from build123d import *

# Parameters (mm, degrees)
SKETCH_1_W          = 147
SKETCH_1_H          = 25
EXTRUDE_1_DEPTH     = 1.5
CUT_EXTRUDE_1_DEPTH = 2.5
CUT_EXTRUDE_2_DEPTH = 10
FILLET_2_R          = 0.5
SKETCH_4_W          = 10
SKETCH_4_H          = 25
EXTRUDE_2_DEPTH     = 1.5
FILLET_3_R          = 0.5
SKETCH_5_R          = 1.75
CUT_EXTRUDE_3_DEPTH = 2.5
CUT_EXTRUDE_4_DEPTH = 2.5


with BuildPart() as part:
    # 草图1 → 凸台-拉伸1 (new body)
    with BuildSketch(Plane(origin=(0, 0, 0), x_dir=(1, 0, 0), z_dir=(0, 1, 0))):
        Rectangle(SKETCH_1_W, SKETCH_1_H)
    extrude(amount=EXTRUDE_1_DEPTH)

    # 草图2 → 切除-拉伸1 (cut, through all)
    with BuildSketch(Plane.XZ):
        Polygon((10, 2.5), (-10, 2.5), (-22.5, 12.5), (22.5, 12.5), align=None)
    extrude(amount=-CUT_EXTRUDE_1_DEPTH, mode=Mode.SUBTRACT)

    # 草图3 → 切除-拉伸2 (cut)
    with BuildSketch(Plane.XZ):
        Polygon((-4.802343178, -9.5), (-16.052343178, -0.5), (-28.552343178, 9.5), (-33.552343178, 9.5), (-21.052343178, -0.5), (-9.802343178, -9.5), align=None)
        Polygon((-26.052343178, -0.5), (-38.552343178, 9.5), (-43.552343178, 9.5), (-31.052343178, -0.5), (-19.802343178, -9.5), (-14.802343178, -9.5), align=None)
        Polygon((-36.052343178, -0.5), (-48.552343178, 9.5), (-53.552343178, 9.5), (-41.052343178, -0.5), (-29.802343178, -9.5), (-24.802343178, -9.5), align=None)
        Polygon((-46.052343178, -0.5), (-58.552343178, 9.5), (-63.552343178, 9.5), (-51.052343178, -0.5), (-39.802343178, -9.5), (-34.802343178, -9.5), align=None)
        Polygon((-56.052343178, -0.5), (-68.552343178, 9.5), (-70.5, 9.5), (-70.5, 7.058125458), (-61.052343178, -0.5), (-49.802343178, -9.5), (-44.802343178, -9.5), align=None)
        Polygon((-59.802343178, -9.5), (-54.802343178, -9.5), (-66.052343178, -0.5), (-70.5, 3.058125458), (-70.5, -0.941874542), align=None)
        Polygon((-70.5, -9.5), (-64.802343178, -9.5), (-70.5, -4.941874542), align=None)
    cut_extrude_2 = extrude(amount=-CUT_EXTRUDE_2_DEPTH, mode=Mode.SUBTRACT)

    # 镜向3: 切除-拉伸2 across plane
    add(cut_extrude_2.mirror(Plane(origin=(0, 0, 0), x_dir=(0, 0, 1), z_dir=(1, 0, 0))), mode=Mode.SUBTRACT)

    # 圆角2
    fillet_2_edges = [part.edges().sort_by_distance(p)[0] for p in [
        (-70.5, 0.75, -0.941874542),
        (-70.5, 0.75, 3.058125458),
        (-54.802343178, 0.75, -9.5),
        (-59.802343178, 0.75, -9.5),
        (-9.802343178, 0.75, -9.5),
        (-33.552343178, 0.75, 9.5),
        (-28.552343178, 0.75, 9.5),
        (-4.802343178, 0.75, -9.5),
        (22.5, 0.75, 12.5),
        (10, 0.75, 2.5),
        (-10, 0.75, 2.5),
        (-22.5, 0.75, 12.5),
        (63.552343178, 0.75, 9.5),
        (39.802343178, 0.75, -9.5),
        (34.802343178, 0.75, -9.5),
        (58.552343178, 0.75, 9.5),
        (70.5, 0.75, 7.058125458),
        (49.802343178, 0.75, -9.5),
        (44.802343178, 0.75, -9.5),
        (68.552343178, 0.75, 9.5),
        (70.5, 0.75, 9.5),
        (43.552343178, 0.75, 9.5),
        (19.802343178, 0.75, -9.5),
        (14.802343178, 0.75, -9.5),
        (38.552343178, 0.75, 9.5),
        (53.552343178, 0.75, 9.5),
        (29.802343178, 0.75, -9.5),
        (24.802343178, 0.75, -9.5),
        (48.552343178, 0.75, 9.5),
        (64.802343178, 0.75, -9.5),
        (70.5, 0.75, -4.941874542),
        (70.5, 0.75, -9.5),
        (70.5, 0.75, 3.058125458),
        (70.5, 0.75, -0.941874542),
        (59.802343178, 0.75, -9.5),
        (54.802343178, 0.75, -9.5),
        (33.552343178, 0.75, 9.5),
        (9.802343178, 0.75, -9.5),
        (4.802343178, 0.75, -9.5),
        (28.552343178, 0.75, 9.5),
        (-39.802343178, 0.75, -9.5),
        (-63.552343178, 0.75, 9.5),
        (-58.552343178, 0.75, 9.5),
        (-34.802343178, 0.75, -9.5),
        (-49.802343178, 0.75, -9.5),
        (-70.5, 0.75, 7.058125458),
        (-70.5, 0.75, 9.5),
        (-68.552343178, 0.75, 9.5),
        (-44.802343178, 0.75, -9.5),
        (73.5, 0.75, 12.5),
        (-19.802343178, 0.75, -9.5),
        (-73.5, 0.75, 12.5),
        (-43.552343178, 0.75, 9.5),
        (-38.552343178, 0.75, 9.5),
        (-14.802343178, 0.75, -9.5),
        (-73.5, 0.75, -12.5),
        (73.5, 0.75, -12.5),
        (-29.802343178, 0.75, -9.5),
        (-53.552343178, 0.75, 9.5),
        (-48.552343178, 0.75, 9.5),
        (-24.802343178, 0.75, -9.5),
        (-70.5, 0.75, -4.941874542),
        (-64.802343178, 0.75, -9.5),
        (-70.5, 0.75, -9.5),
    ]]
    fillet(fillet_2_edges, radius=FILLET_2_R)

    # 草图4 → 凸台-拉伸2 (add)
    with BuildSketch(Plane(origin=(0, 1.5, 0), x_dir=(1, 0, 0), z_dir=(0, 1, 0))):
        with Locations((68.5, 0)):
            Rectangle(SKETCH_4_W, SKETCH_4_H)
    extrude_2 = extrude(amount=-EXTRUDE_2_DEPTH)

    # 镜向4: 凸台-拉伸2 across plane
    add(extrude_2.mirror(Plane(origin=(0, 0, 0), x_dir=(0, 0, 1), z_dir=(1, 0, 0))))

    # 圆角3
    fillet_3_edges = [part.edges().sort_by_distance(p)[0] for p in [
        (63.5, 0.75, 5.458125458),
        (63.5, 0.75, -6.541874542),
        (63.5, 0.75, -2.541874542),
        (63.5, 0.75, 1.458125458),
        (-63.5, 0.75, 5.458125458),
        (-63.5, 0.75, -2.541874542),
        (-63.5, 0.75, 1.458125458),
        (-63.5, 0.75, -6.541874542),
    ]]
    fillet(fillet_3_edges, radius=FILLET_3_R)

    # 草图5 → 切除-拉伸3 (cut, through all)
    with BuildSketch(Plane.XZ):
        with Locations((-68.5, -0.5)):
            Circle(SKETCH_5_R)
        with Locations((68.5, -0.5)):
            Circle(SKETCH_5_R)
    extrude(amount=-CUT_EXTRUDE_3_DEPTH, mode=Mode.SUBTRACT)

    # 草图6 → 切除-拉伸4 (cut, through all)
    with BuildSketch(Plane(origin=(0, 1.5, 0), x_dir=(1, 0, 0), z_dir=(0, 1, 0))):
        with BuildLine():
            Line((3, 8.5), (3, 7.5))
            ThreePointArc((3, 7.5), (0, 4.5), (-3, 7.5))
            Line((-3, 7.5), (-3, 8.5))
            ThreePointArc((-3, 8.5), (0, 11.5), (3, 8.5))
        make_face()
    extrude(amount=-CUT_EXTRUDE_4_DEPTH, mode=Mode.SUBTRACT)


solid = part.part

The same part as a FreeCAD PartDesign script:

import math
import FreeCAD as App
import Part
import Sketcher
Q = App.Units.Quantity


def edges_at(feature, points):
    """Names of the edges that pass closest to the given points."""
    edges = feature.Shape.Edges
    near = lambda p: min(range(len(edges)), key=lambda i: edges[i].distToShape(Part.Vertex(*p))[0])
    return sorted({f"Edge{near(p) + 1}" for p in points})

doc = App.newDocument("Part")
body = doc.addObject("PartDesign::Body", "Body")

sketch1 = doc.addObject("Sketcher::SketchObject", "Sketch")
body.addObject(sketch1)
sketch1.AttachmentSupport = (doc.XZ_Plane, [""])
sketch1.MapMode = "FlatFace"
sketch1.addGeometry([
    Part.LineSegment(App.Vector(-74, -12, 0), App.Vector(-74, 12, 0)),
    Part.LineSegment(App.Vector(-74, 12, 0), App.Vector(74, 12, 0)),
    Part.LineSegment(App.Vector(74, 12, 0), App.Vector(74, -12, 0)),
    Part.LineSegment(App.Vector(74, -12, 0), App.Vector(-74, -12, 0)),
], False)
sketch1.addConstraint([
    Sketcher.Constraint("Coincident", 0, 2, 1, 1),
    Sketcher.Constraint("Coincident", 1, 2, 2, 1),
    Sketcher.Constraint("Coincident", 2, 2, 3, 1),
    Sketcher.Constraint("Coincident", 3, 2, 0, 1),
    Sketcher.Constraint("Vertical", 0),
    Sketcher.Constraint("Horizontal", 1),
    Sketcher.Constraint("Vertical", 2),
    Sketcher.Constraint("Horizontal", 3),
    Sketcher.Constraint("Symmetric", 0, 2, 2, 2, -1, 1),
    Sketcher.Constraint("DistanceX", 1, 1, 1, 2, Q("147 mm")),
    Sketcher.Constraint("DistanceY", 0, 1, 0, 2, Q("25 mm")),
])
pad1 = doc.addObject("PartDesign::Pad", "Pad")
body.addObject(pad1)
pad1.Profile = sketch1
pad1.Length = 1.5
pad1.Reversed = True

sketch2 = doc.addObject("Sketcher::SketchObject", "Sketch001")
body.addObject(sketch2)
sketch2.AttachmentSupport = (doc.XZ_Plane, [""])
sketch2.MapMode = "FlatFace"
sketch2.addGeometry([
    Part.LineSegment(App.Vector(-10, 2, 0), App.Vector(10, 2, 0)),
    Part.LineSegment(App.Vector(10, 2, 0), App.Vector(22, 12, 0)),
    Part.LineSegment(App.Vector(22, 12, 0), App.Vector(-22, 12, 0)),
    Part.LineSegment(App.Vector(-22, 12, 0), App.Vector(-10, 2, 0)),
], False)
sketch2.addConstraint([
    Sketcher.Constraint("Coincident", 0, 2, 1, 1),
    Sketcher.Constraint("Coincident", 1, 2, 2, 1),
    Sketcher.Constraint("Coincident", 2, 2, 3, 1),
    Sketcher.Constraint("Coincident", 3, 2, 0, 1),
    Sketcher.Constraint("Horizontal", 0),
    Sketcher.Constraint("Horizontal", 2),
    Sketcher.Constraint("Equal", 1, 3),
    Sketcher.Constraint("DistanceX", 0, 1, 0, 2, Q("20 mm")),
    Sketcher.Constraint("DistanceX", 2, 2, 2, 1, Q("45 mm")),
    Sketcher.Constraint("DistanceX", -1, 1, 0, 2, Q("10 mm")),
    Sketcher.Constraint("DistanceY", 0, 2, 1, 2, Q("10 mm")),
    Sketcher.Constraint("DistanceY", -1, 1, 0, 2, Q("2.5 mm")),
])
pocket1 = doc.addObject("PartDesign::Pocket", "Pocket")
body.addObject(pocket1)
pocket1.Profile = sketch2
pocket1.Type = "ThroughAll"

sketch3 = doc.addObject("Sketcher::SketchObject", "Sketch002")
body.addObject(sketch3)
sketch3.AttachmentSupport = (doc.XZ_Plane, [""])
sketch3.MapMode = "FlatFace"
sketch3.addGeometry([
    Part.LineSegment(App.Vector(-4.8, -9.5, 0), App.Vector(-28.6, 9.5, 0)),
    Part.LineSegment(App.Vector(-28.6, 9.5, 0), App.Vector(-33.6, 9.5, 0)),
    Part.LineSegment(App.Vector(-33.6, 9.5, 0), App.Vector(-9.8, -9.5, 0)),
    Part.LineSegment(App.Vector(-9.8, -9.5, 0), App.Vector(-4.8, -9.5, 0)),
    Part.LineSegment(App.Vector(-38.6, 9.5, 0), App.Vector(-43.6, 9.5, 0)),
    Part.LineSegment(App.Vector(-43.6, 9.5, 0), App.Vector(-19.8, -9.5, 0)),
    Part.LineSegment(App.Vector(-19.8, -9.5, 0), App.Vector(-14.8, -9.5, 0)),
    Part.LineSegment(App.Vector(-14.8, -9.5, 0), App.Vector(-38.6, 9.5, 0)),
    Part.LineSegment(App.Vector(-48.6, 9.5, 0), App.Vector(-53.6, 9.5, 0)),
    Part.LineSegment(App.Vector(-53.6, 9.5, 0), App.Vector(-29.8, -9.5, 0)),
    Part.LineSegment(App.Vector(-29.8, -9.5, 0), App.Vector(-24.8, -9.5, 0)),
    Part.LineSegment(App.Vector(-24.8, -9.5, 0), App.Vector(-48.6, 9.5, 0)),
    Part.LineSegment(App.Vector(-58.6, 9.5, 0), App.Vector(-63.6, 9.5, 0)),
    Part.LineSegment(App.Vector(-63.6, 9.5, 0), App.Vector(-39.8, -9.5, 0)),
    Part.LineSegment(App.Vector(-39.8, -9.5, 0), App.Vector(-34.8, -9.5, 0)),
    Part.LineSegment(App.Vector(-34.8, -9.5, 0), App.Vector(-58.6, 9.5, 0)),
    Part.LineSegment(App.Vector(-68.6, 9.5, 0), App.Vector(-70.5, 9.5, 0)),
    Part.LineSegment(App.Vector(-70.5, 9.5, 0), App.Vector(-70.5, 7.1, 0)),
    Part.LineSegment(App.Vector(-70.5, 7.1, 0), App.Vector(-61.1, -0.5, 0)),
    Part.LineSegment(App.Vector(-61.1, -0.5, 0), App.Vector(-49.8, -9.5, 0)),
    Part.LineSegment(App.Vector(-49.8, -9.5, 0), App.Vector(-44.8, -9.5, 0)),
    Part.LineSegment(App.Vector(-44.8, -9.5, 0), App.Vector(-68.6, 9.5, 0)),
    Part.LineSegment(App.Vector(-59.8, -9.5, 0), App.Vector(-54.8, -9.5, 0)),
    Part.LineSegment(App.Vector(-54.8, -9.5, 0), App.Vector(-66.1, -0.5, 0)),
    Part.LineSegment(App.Vector(-66.1, -0.5, 0), App.Vector(-70.5, 3.1, 0)),
    Part.LineSegment(App.Vector(-70.5, 3.1, 0), App.Vector(-70.5, -0.9, 0)),
    Part.LineSegment(App.Vector(-70.5, -0.9, 0), App.Vector(-59.8, -9.5, 0)),
    Part.LineSegment(App.Vector(-70.5, -9.5, 0), App.Vector(-64.8, -9.5, 0)),
    Part.LineSegment(App.Vector(-64.8, -9.5, 0), App.Vector(-70.5, -4.9, 0)),
    Part.LineSegment(App.Vector(-70.5, -4.9, 0), App.Vector(-70.5, -9.5, 0)),
], False)
sketch3.addConstraint([
    Sketcher.Constraint("Coincident", 0, 2, 1, 1),
    Sketcher.Constraint("Coincident", 1, 2, 2, 1),
    Sketcher.Constraint("Coincident", 2, 2, 3, 1),
    Sketcher.Constraint("Coincident", 3, 2, 0, 1),
    Sketcher.Constraint("Coincident", 4, 2, 5, 1),
    Sketcher.Constraint("Coincident", 5, 2, 6, 1),
    Sketcher.Constraint("Coincident", 6, 2, 7, 1),
    Sketcher.Constraint("Coincident", 7, 2, 4, 1),
    Sketcher.Constraint("Coincident", 8, 2, 9, 1),
    Sketcher.Constraint("Coincident", 9, 2, 10, 1),
    Sketcher.Constraint("Coincident", 10, 2, 11, 1),
    Sketcher.Constraint("Coincident", 11, 2, 8, 1),
    Sketcher.Constraint("Coincident", 12, 2, 13, 1),
    Sketcher.Constraint("Coincident", 13, 2, 14, 1),
    Sketcher.Constraint("Coincident", 14, 2, 15, 1),
    Sketcher.Constraint("Coincident", 15, 2, 12, 1),
    Sketcher.Constraint("Coincident", 16, 2, 17, 1),
    Sketcher.Constraint("Coincident", 17, 2, 18, 1),
    Sketcher.Constraint("Coincident", 18, 2, 19, 1),
    Sketcher.Constraint("Coincident", 19, 2, 20, 1),
    Sketcher.Constraint("Coincident", 20, 2, 21, 1),
    Sketcher.Constraint("Coincident", 21, 2, 16, 1),
    Sketcher.Constraint("Coincident", 22, 2, 23, 1),
    Sketcher.Constraint("Coincident", 23, 2, 24, 1),
    Sketcher.Constraint("Coincident", 24, 2, 25, 1),
    Sketcher.Constraint("Coincident", 25, 2, 26, 1),
    Sketcher.Constraint("Coincident", 26, 2, 22, 1),
    Sketcher.Constraint("Coincident", 27, 2, 28, 1),
    Sketcher.Constraint("Coincident", 28, 2, 29, 1),
    Sketcher.Constraint("Coincident", 29, 2, 27, 1),
    Sketcher.Constraint("Horizontal", 1),
    Sketcher.Constraint("Horizontal", 3),
    Sketcher.Constraint("Horizontal", 4),
    Sketcher.Constraint("Horizontal", 6),
    Sketcher.Constraint("Horizontal", 8),
    Sketcher.Constraint("Horizontal", 10),
    Sketcher.Constraint("Horizontal", 12),
    Sketcher.Constraint("Horizontal", 14),
    Sketcher.Constraint("Horizontal", 16),
    Sketcher.Constraint("Vertical", 17),
    Sketcher.Constraint("Horizontal", 20),
    Sketcher.Constraint("Horizontal", 22),
    Sketcher.Constraint("Vertical", 25),
    Sketcher.Constraint("Horizontal", 27),
    Sketcher.Constraint("Vertical", 29),
    Sketcher.Constraint("Symmetric", 16, 2, 29, 2, -1),
    Sketcher.Constraint("Parallel", 0, 2),
    Sketcher.Constraint("Parallel", 2, 5),
    Sketcher.Constraint("Parallel", 5, 7),
    Sketcher.Constraint("Parallel", 7, 9),
    Sketcher.Constraint("Parallel", 9, 11),
    Sketcher.Constraint("Parallel", 11, 13),
    Sketcher.Constraint("Parallel", 13, 15),
    Sketcher.Constraint("Parallel", 15, 18),
    Sketcher.Constraint("Parallel", 18, 19),
    Sketcher.Constraint("Parallel", 19, 21),
    Sketcher.Constraint("Parallel", 21, 23),
    Sketcher.Constraint("Parallel", 23, 24),
    Sketcher.Constraint("Parallel", 24, 26),
    Sketcher.Constraint("Parallel", 26, 28),
    Sketcher.Constraint("Horizontal", 1, 2, 4, 2),
    Sketcher.Constraint("Horizontal", 3, 2, 5, 2),
    Sketcher.Constraint("Horizontal", 7, 2, 8, 2),
    Sketcher.Constraint("Horizontal", 6, 2, 9, 2),
    Sketcher.Constraint("Horizontal", 11, 2, 12, 2),
    Sketcher.Constraint("Horizontal", 10, 2, 13, 2),
    Sketcher.Constraint("Horizontal", 15, 2, 16, 2),
    Sketcher.Constraint("Horizontal", 14, 2, 19, 2),
    Sketcher.Constraint("Horizontal", 20, 2, 22, 2),
    Sketcher.Constraint("Horizontal", 18, 2, 23, 2),
    Sketcher.Constraint("Horizontal", 26, 2, 27, 2),
    Sketcher.Constraint("Vertical", 17, 2, 24, 2),
    Sketcher.Constraint("Equal", 3, 4),
    Sketcher.Constraint("Equal", 6, 8),
    Sketcher.Constraint("Equal", 10, 12),
    Sketcher.Constraint("Equal", 14, 20),
    Sketcher.Constraint("Equal", 20, 22),
    Sketcher.Constraint("DistanceX", 1, 2, 1, 1, Q("5 mm")),
    Sketcher.Constraint("DistanceY", 25, 2, 25, 1, Q("4 mm")),
    Sketcher.Constraint("DistanceY", 2, 2, 0, 2, Q("19 mm")),
    Sketcher.Constraint("DistanceX", 4, 2, 1, 2, Q("10 mm")),
    Sketcher.Constraint("DistanceX", 8, 2, 4, 2, Q("10 mm")),
    Sketcher.Constraint("DistanceX", 12, 2, 8, 2, Q("10 mm")),
    Sketcher.Constraint("DistanceY", 18, 2, 12, 2, Q("10 mm")),
    Sketcher.Constraint("DistanceX", 19, 2, 13, 2, Q("10 mm")),
    Sketcher.Constraint("DistanceX", 22, 2, 19, 2, Q("5 mm")),
    Sketcher.Constraint("DistanceX", 27, 2, 26, 2, Q("5 mm")),
    Sketcher.Constraint("DistanceX", 16, 2, -1, 1, Q("70.5 mm")),
    Sketcher.Constraint("Distance", 24, Q("5.69578 mm")),
])
pocket2 = doc.addObject("PartDesign::Pocket", "Pocket001")
body.addObject(pocket2)
pocket2.Profile = sketch3
pocket2.Length = 10
doc.recompute()

mirrored = doc.addObject("PartDesign::Mirrored", "Mirrored")
body.addObject(mirrored)
mirrored.Originals = [pocket2]
mirrored.MirrorPlane = (doc.YZ_Plane, [""])
body.Tip = mirrored
doc.recompute()

fillet = doc.addObject("PartDesign::Fillet", "Fillet")
body.addObject(fillet)
fillet.Base = (mirrored, edges_at(mirrored, [
    (-70.5, 0.75, -0.942),
    (-70.5, 0.75, 3.058),
    (-54.802, 0.75, -9.5),
    (-59.802, 0.75, -9.5),
    (-9.802, 0.75, -9.5),
    (-33.552, 0.75, 9.5),
    (-28.552, 0.75, 9.5),
    (-4.802, 0.75, -9.5),
    (22.5, 0.75, 12.5),
    (10, 0.75, 2.5),
    (-10, 0.75, 2.5),
    (-22.5, 0.75, 12.5),
    (63.552, 0.75, 9.5),
    (39.802, 0.75, -9.5),
    (34.802, 0.75, -9.5),
    (58.552, 0.75, 9.5),
    (70.5, 0.75, 7.058),
    (49.802, 0.75, -9.5),
    (44.802, 0.75, -9.5),
    (68.552, 0.75, 9.5),
    (70.5, 0.75, 9.5),
    (43.552, 0.75, 9.5),
    (19.802, 0.75, -9.5),
    (14.802, 0.75, -9.5),
    (38.552, 0.75, 9.5),
    (53.552, 0.75, 9.5),
    (29.802, 0.75, -9.5),
    (24.802, 0.75, -9.5),
    (48.552, 0.75, 9.5),
    (64.802, 0.75, -9.5),
    (70.5, 0.75, -4.942),
    (70.5, 0.75, -9.5),
    (70.5, 0.75, 3.058),
    (70.5, 0.75, -0.942),
    (59.802, 0.75, -9.5),
    (54.802, 0.75, -9.5),
    (33.552, 0.75, 9.5),
    (9.802, 0.75, -9.5),
    (4.802, 0.75, -9.5),
    (28.552, 0.75, 9.5),
    (-39.802, 0.75, -9.5),
    (-63.552, 0.75, 9.5),
    (-58.552, 0.75, 9.5),
    (-34.802, 0.75, -9.5),
    (-49.802, 0.75, -9.5),
    (-70.5, 0.75, 7.058),
    (-70.5, 0.75, 9.5),
    (-68.552, 0.75, 9.5),
    (-44.802, 0.75, -9.5),
    (73.5, 0.75, 12.5),
    (-19.802, 0.75, -9.5),
    (-73.5, 0.75, 12.5),
    (-43.552, 0.75, 9.5),
    (-38.552, 0.75, 9.5),
    (-14.802, 0.75, -9.5),
    (-73.5, 0.75, -12.5),
    (73.5, 0.75, -12.5),
    (-29.802, 0.75, -9.5),
    (-53.552, 0.75, 9.5),
    (-48.552, 0.75, 9.5),
    (-24.802, 0.75, -9.5),
    (-70.5, 0.75, -4.942),
    (-64.802, 0.75, -9.5),
    (-70.5, 0.75, -9.5),
]))
fillet.Radius = 0.5

sketch4 = doc.addObject("Sketcher::SketchObject", "Sketch003")
body.addObject(sketch4)
sketch4.AttachmentSupport = (doc.XZ_Plane, [""])
sketch4.MapMode = "FlatFace"
sketch4.AttachmentOffset = App.Placement(App.Vector(0, 0, -1.5), App.Rotation())
sketch4.addGeometry([
    Part.LineSegment(App.Vector(64, -12, 0), App.Vector(64, 12, 0)),
    Part.LineSegment(App.Vector(64, 12, 0), App.Vector(74, 12, 0)),
    Part.LineSegment(App.Vector(74, 12, 0), App.Vector(74, -12, 0)),
    Part.LineSegment(App.Vector(74, -12, 0), App.Vector(64, -12, 0)),
], False)
sketch4.addConstraint([
    Sketcher.Constraint("Coincident", 0, 2, 1, 1),
    Sketcher.Constraint("Coincident", 1, 2, 2, 1),
    Sketcher.Constraint("Coincident", 2, 2, 3, 1),
    Sketcher.Constraint("Coincident", 3, 2, 0, 1),
    Sketcher.Constraint("Vertical", 0),
    Sketcher.Constraint("Horizontal", 1),
    Sketcher.Constraint("Vertical", 2),
    Sketcher.Constraint("Horizontal", 3),
    Sketcher.Constraint("DistanceX", 1, 1, 1, 2, Q("10 mm")),
    Sketcher.Constraint("DistanceY", 0, 1, 0, 2, Q("25 mm")),
    Sketcher.Constraint("DistanceX", -1, 1, 0, 2, Q("63.5 mm")),
    Sketcher.Constraint("DistanceY", -1, 1, 0, 2, Q("12.5 mm")),
])
pad2 = doc.addObject("PartDesign::Pad", "Pad001")
body.addObject(pad2)
pad2.Profile = sketch4
pad2.Length = 1.5
doc.recompute()

mirrored2 = doc.addObject("PartDesign::Mirrored", "Mirrored001")
body.addObject(mirrored2)
mirrored2.Originals = [pad2]
mirrored2.MirrorPlane = (doc.YZ_Plane, [""])
body.Tip = mirrored2
doc.recompute()

fillet2 = doc.addObject("PartDesign::Fillet", "Fillet001")
body.addObject(fillet2)
fillet2.Base = (mirrored2, edges_at(mirrored2, [
    (63.5, 0.75, 5.458),
    (63.5, 0.75, -6.542),
    (63.5, 0.75, -2.542),
    (63.5, 0.75, 1.458),
    (-63.5, 0.75, 5.458),
    (-63.5, 0.75, -2.542),
    (-63.5, 0.75, 1.458),
    (-63.5, 0.75, -6.542),
]))
fillet2.Radius = 0.5

sketch5 = doc.addObject("Sketcher::SketchObject", "Sketch004")
body.addObject(sketch5)
sketch5.AttachmentSupport = (doc.XZ_Plane, [""])
sketch5.MapMode = "FlatFace"
sketch5.addGeometry([
    Part.Circle(App.Vector(-68.5, -0.5, 0), App.Vector(0, 0, 1), 1.8),
    Part.Circle(App.Vector(68.5, -0.5, 0), App.Vector(0, 0, 1), 1.8),
], False)
sketch5.addConstraint([
    Sketcher.Constraint("Equal", 0, 1),
    Sketcher.Constraint("Symmetric", 0, 3, 1, 3, -2),
    Sketcher.Constraint("Diameter", 0, Q("3.5 mm")),
    Sketcher.Constraint("DistanceX", 0, 3, 1, 3, Q("137 mm")),
    Sketcher.Constraint("DistanceY", 0, 3, -1, 1, Q("0.5 mm")),
])
pocket3 = doc.addObject("PartDesign::Pocket", "Pocket002")
body.addObject(pocket3)
pocket3.Profile = sketch5
pocket3.Type = "ThroughAll"

sketch6 = doc.addObject("Sketcher::SketchObject", "Sketch005")
body.addObject(sketch6)
sketch6.AttachmentSupport = (doc.XZ_Plane, [""])
sketch6.MapMode = "FlatFace"
sketch6.AttachmentOffset = App.Placement(App.Vector(0, 0, -1.5), App.Rotation())
sketch6.addGeometry([
    Part.LineSegment(App.Vector(3, -7.5, 0), App.Vector(3, -8.5, 0)),
    Part.ArcOfCircle(Part.Circle(App.Vector(0, -8.5, 0), App.Vector(0, 0, 1), 3), math.radians(180), math.radians(360)),
    Part.LineSegment(App.Vector(-3, -8.5, 0), App.Vector(-3, -7.5, 0)),
    Part.ArcOfCircle(Part.Circle(App.Vector(0, -7.5, 0), App.Vector(0, 0, 1), 3), math.radians(0), math.radians(180)),
], False)
sketch6.addConstraint([
    Sketcher.Constraint("Tangent", 0, 2, 1, 2),
    Sketcher.Constraint("Tangent", 1, 1, 2, 1),
    Sketcher.Constraint("Tangent", 2, 2, 3, 2),
    Sketcher.Constraint("Tangent", 3, 1, 0, 1),
    Sketcher.Constraint("Vertical", 0),
    Sketcher.Constraint("Vertical", 2),
    Sketcher.Constraint("PointOnObject", 1, 3, -2),
    Sketcher.Constraint("Radius", 1, Q("3 mm")),
    Sketcher.Constraint("DistanceY", 0, 2, 0, 1, Q("1 mm")),
    Sketcher.Constraint("DistanceY", 1, 3, -1, 1, Q("8.5 mm")),
])
pocket4 = doc.addObject("PartDesign::Pocket", "Pocket003")
body.addObject(pocket4)
pocket4.Profile = sketch6
pocket4.Type = "ThroughAll"
pocket4.Reversed = True

doc.recompute()
